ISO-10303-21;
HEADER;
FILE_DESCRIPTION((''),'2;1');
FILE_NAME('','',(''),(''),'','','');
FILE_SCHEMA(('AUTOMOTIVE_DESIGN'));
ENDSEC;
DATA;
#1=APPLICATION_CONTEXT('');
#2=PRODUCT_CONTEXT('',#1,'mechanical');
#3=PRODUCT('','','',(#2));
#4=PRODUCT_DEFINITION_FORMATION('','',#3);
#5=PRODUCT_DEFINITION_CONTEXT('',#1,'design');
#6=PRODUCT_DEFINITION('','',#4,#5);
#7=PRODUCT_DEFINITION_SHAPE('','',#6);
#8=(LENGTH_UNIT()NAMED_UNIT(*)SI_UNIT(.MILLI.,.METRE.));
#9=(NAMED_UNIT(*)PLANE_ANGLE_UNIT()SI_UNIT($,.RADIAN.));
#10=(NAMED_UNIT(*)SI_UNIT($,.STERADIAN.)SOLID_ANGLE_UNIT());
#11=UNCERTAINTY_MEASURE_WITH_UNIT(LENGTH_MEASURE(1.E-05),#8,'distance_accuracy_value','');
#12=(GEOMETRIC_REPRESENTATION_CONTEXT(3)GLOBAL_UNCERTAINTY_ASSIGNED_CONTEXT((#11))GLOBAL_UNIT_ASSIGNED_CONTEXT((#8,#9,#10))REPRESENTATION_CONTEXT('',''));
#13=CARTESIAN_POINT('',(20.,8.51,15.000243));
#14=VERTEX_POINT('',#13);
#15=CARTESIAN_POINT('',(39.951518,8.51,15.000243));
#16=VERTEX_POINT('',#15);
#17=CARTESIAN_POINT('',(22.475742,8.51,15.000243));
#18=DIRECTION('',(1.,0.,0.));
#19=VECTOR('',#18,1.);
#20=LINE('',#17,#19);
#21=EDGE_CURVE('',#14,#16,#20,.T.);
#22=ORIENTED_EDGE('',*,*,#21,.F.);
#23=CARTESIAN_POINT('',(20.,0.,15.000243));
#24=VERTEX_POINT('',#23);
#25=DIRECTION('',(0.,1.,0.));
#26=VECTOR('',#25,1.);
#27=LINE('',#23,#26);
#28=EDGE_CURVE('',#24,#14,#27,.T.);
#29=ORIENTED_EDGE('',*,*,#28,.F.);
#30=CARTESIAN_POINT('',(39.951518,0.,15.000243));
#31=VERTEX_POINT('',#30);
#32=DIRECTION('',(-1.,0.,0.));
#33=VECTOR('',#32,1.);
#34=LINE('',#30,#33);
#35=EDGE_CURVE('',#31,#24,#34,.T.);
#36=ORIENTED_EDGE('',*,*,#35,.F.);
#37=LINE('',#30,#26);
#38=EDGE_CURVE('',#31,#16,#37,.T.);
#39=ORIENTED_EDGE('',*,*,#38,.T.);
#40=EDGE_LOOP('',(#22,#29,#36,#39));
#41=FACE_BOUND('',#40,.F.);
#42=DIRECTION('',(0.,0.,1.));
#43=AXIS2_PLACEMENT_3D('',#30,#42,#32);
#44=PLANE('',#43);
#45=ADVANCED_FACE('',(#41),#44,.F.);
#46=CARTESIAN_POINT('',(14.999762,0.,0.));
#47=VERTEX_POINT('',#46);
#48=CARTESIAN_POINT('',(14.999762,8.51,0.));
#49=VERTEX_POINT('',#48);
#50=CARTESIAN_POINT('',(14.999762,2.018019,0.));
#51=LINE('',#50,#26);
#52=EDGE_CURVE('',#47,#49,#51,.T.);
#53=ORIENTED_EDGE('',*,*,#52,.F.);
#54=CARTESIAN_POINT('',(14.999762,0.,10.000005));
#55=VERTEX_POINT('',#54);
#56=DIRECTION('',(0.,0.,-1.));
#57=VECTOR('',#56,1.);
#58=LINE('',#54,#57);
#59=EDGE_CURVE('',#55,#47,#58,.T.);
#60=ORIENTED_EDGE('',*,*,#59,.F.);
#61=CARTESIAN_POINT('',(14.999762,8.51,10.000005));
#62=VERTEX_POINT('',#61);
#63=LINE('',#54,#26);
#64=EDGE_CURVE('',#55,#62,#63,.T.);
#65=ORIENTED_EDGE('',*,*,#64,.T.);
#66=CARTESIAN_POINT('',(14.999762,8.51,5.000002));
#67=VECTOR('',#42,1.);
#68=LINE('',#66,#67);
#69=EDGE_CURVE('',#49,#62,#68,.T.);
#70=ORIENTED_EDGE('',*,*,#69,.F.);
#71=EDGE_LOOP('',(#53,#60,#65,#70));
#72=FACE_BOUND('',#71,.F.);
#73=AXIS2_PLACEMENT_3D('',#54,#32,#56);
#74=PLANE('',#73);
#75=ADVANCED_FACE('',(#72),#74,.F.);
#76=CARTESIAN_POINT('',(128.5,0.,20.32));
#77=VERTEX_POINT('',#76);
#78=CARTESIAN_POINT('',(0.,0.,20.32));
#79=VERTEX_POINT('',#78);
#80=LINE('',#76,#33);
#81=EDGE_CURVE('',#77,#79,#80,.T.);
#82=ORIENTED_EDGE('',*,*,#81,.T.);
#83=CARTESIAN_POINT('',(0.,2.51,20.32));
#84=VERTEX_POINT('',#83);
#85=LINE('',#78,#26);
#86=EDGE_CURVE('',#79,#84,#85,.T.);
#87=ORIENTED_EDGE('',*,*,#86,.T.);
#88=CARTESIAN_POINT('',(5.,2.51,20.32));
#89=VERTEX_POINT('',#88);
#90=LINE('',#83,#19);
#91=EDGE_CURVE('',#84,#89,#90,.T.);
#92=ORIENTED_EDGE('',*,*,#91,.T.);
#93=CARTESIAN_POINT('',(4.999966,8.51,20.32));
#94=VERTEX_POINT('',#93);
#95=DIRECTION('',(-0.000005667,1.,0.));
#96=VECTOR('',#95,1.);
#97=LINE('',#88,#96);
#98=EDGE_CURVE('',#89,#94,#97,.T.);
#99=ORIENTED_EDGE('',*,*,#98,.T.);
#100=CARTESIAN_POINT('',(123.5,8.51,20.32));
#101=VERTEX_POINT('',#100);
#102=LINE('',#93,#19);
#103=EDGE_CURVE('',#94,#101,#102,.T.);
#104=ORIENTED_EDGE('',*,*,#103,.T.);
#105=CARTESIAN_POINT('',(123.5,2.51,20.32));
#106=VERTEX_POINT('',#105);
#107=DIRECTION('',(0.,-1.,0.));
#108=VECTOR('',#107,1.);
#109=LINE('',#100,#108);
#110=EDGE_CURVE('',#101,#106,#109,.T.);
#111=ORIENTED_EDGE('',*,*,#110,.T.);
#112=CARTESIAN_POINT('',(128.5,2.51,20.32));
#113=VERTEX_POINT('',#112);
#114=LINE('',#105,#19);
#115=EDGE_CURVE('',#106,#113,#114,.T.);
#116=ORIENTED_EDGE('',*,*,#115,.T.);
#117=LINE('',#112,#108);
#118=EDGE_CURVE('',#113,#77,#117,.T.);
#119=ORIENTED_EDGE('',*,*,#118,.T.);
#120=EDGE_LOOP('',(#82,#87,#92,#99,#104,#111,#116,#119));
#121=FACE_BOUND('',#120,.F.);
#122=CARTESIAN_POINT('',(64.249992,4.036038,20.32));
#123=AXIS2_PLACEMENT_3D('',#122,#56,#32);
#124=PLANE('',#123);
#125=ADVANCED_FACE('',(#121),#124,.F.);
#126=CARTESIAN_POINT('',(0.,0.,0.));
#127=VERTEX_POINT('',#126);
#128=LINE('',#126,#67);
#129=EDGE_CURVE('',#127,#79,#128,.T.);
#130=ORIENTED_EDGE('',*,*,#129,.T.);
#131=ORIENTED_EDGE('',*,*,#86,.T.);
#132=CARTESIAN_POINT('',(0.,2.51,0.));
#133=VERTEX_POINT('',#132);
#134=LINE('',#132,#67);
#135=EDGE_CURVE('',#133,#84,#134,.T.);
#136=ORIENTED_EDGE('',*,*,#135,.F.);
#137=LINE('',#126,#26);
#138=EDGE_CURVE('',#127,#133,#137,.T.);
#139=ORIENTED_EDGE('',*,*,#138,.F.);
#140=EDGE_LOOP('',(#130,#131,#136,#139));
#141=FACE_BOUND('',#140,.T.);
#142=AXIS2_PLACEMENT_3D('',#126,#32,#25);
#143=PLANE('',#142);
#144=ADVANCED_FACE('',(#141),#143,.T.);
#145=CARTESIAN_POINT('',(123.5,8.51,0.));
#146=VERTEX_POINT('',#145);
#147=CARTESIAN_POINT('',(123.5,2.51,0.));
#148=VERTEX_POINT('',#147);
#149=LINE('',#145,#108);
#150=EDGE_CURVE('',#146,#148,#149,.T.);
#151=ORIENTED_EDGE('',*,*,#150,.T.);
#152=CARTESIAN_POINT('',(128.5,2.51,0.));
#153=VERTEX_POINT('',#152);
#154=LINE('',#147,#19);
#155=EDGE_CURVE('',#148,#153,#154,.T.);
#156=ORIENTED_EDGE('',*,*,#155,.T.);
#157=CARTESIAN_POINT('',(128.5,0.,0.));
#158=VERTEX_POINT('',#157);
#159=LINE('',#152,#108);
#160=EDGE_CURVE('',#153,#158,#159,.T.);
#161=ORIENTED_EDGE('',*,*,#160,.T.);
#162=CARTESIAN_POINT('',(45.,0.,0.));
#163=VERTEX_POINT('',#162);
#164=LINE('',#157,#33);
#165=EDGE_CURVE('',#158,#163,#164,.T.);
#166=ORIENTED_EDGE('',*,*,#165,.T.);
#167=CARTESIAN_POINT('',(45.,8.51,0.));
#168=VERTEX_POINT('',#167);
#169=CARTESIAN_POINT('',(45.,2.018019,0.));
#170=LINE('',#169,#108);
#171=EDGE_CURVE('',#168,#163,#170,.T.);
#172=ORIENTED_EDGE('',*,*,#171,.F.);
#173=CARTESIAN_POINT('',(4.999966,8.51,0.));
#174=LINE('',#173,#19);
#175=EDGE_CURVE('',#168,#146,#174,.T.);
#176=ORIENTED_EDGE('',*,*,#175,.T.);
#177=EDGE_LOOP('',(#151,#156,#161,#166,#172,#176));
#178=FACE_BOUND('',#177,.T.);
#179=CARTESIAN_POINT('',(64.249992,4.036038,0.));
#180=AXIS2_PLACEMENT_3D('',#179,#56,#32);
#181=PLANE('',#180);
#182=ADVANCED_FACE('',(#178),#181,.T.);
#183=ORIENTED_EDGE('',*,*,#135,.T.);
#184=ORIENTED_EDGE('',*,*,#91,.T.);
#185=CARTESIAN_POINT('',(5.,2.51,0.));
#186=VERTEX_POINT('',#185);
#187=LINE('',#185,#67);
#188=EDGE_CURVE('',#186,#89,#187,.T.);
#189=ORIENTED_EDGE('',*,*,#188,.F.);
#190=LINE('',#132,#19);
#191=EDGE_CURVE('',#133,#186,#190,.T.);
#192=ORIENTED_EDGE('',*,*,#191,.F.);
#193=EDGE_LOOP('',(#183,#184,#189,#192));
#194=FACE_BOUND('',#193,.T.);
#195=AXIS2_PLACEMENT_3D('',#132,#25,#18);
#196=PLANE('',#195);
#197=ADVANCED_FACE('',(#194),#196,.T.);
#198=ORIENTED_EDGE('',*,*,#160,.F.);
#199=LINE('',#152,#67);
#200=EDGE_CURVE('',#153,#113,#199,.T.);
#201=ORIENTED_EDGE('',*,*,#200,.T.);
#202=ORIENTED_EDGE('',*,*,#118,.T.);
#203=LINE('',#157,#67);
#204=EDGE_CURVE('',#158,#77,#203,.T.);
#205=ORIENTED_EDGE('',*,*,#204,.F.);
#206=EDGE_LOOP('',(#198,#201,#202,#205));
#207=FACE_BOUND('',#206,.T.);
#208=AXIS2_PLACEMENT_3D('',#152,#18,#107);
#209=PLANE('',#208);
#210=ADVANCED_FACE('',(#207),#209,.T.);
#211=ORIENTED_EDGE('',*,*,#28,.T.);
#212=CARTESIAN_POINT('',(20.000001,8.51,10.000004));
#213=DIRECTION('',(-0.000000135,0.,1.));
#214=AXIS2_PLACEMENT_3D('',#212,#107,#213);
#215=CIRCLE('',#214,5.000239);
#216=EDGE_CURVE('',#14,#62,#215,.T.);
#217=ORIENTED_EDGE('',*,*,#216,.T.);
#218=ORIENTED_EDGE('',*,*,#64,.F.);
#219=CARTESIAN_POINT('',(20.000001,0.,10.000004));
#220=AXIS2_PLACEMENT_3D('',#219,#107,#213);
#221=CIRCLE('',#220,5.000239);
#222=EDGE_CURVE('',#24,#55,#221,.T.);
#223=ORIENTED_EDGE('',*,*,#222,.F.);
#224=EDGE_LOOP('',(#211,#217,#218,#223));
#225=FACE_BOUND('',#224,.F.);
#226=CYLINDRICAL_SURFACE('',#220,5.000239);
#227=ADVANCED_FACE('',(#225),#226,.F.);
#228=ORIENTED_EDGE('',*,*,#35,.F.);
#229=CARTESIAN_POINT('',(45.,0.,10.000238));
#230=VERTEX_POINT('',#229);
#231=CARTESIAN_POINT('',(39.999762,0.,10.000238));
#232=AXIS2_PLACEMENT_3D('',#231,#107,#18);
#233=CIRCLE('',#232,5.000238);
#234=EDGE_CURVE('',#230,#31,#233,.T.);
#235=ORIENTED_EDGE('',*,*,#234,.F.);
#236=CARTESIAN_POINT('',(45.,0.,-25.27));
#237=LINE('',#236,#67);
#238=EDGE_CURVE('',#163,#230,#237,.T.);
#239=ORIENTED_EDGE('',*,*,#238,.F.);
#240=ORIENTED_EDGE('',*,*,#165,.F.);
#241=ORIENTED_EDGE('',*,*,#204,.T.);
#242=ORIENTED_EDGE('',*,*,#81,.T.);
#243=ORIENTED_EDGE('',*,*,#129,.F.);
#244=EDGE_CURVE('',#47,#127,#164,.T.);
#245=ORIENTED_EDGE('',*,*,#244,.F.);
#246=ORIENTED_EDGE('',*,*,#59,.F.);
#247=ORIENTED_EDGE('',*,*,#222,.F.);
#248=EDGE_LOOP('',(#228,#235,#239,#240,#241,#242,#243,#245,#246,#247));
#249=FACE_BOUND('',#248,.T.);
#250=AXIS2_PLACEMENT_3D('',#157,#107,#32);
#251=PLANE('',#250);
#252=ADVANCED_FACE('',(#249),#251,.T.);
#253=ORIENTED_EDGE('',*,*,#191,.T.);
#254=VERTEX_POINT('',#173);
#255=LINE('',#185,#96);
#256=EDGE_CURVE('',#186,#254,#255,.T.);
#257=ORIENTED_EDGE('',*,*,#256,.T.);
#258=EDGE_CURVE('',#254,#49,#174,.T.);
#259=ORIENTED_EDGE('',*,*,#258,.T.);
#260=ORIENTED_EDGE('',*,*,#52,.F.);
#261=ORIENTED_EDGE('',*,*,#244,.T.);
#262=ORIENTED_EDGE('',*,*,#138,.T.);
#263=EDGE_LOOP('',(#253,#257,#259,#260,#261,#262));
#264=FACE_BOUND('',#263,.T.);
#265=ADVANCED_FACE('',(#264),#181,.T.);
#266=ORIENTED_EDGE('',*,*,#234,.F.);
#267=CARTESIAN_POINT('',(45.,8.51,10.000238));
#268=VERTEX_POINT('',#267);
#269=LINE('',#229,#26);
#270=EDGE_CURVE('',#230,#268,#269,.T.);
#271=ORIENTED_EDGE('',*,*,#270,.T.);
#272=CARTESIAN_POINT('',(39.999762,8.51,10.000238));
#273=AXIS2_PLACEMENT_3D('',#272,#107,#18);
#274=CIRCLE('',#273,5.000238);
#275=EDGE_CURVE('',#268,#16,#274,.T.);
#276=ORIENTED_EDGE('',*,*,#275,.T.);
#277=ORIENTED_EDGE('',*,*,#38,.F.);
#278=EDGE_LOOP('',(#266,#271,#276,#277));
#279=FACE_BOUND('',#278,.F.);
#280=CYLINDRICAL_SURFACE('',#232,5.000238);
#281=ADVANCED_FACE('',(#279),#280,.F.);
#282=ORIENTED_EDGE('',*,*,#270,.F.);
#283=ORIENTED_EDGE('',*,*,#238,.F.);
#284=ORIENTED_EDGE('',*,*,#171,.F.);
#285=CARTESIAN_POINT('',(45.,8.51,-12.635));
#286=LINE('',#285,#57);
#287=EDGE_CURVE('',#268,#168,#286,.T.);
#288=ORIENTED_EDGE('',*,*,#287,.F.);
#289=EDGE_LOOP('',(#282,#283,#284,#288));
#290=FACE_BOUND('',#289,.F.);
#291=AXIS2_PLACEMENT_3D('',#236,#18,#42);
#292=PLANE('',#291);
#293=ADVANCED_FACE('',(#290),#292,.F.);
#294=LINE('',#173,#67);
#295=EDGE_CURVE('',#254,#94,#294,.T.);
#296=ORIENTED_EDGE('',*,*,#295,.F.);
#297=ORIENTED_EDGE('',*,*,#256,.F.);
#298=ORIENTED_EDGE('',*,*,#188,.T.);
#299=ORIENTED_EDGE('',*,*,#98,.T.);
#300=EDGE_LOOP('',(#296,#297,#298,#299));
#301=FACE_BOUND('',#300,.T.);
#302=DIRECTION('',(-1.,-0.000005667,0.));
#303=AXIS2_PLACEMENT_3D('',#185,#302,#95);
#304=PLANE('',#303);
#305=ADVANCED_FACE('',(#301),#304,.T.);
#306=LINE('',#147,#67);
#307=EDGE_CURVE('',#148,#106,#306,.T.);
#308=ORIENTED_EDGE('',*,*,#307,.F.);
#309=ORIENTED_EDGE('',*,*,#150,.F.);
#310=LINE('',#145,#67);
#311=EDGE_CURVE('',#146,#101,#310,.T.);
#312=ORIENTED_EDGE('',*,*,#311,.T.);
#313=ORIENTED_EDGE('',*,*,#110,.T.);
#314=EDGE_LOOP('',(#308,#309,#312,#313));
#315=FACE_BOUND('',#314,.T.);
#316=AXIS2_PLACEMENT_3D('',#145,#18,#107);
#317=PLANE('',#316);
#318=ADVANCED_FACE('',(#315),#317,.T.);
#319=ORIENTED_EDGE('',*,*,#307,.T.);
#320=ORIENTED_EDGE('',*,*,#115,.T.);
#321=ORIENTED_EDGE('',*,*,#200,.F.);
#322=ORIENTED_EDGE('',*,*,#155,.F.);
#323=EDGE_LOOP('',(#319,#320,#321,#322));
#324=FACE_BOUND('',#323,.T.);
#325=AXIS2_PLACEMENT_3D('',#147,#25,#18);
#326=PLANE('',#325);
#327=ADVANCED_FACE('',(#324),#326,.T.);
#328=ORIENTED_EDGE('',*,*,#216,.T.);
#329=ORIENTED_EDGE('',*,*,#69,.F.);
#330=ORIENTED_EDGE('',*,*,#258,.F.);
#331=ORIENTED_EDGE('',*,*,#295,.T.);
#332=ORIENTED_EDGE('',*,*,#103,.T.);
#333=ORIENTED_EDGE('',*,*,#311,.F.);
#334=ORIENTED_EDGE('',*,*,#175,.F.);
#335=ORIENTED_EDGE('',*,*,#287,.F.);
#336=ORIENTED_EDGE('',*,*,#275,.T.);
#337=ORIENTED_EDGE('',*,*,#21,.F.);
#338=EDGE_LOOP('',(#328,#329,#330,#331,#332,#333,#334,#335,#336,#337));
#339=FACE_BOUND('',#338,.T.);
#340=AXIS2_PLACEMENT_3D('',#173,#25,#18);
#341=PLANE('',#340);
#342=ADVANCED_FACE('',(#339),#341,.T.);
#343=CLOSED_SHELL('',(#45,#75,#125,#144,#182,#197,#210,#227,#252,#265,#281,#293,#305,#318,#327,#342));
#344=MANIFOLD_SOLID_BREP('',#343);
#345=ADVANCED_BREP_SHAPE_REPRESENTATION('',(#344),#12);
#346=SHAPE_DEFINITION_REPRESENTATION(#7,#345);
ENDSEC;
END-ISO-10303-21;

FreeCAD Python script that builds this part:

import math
import FreeCAD as App
import Part
import Sketcher

V = App.Vector
Q = App.Units.Quantity

doc = App.newDocument("Part")
body = doc.addObject("PartDesign::Body", "Body")

sketch1 = body.newObject("Sketcher::SketchObject", "Sketch")
sketch1.AttachmentSupport = (doc.getObject("XY_Plane"), [""])
sketch1.MapMode = "FlatFace"
sketch1.addGeometry([
    Part.LineSegment(V(0, 2.5, 0), V(0, 0, 0)),
    Part.LineSegment(V(0, 0, 0), V(128.5, 0, 0)),
    Part.LineSegment(V(128.5, 0, 0), V(128.5, 2.5, 0)),
    Part.LineSegment(V(128.5, 2.5, 0), V(123.5, 2.5, 0)),
    Part.LineSegment(V(123.5, 2.5, 0), V(123.5, 8.5, 0)),
    Part.LineSegment(V(123.5, 8.5, 0), V(5, 8.5, 0)),
    Part.LineSegment(V(5, 8.5, 0), V(5, 2.5, 0)),
    Part.LineSegment(V(5, 2.5, 0), V(0, 2.5, 0)),
], False)
sketch1.addConstraint([
    Sketcher.Constraint("Coincident", 0, 2, 1, 1),
    Sketcher.Constraint("Coincident", 1, 2, 2, 1),
    Sketcher.Constraint("Coincident", 2, 2, 3, 1),
    Sketcher.Constraint("Coincident", 3, 2, 4, 1),
    Sketcher.Constraint("Coincident", 4, 2, 5, 1),
    Sketcher.Constraint("Coincident", 5, 2, 6, 1),
    Sketcher.Constraint("Coincident", 6, 2, 7, 1),
    Sketcher.Constraint("Coincident", 7, 2, 0, 1),
    Sketcher.Constraint("Vertical", 0),
    Sketcher.Constraint("Horizontal", 1),
    Sketcher.Constraint("Vertical", 2),
    Sketcher.Constraint("Horizontal", 3),
    Sketcher.Constraint("Vertical", 4),
    Sketcher.Constraint("Horizontal", 5),
    Sketcher.Constraint("Horizontal", 7),
    Sketcher.Constraint("Coincident", 0, 2, -1, 1),
    Sketcher.Constraint("Horizontal", 3, 2, 6, 2),
    Sketcher.Constraint("Equal", 3, 7),
    Sketcher.Constraint("DistanceX", 3, 2, 3, 1, Q("5 mm")),
    Sketcher.Constraint("DistanceY", 4, 1, 4, 2, Q("6 mm")),
    Sketcher.Constraint("DistanceX", 1, 1, 1, 2, Q("128.5 mm")),
    Sketcher.Constraint("DistanceY", 0, 2, 0, 1, Q("2.51 mm")),
    Sketcher.Constraint("DistanceX", 5, 2, 5, 1, Q("118.500034 mm")),
])
pad1 = body.newObject("PartDesign::Pad", "Pad")
pad1.Profile = sketch1
pad1.Length = 20.32

sketch2 = body.newObject("Sketcher::SketchObject", "Sketch001")
sketch2.AttachmentSupport = (doc.getObject("XZ_Plane"), [""])
sketch2.MapMode = "FlatFace"
sketch2.addGeometry([
    Part.ArcOfCircle(Part.Circle(V(20, 10, 0), V(0, 0, 1), 5), math.radians(90), math.radians(180)),
    Part.LineSegment(V(15, 10, 0), V(15, -25, 0)),
    Part.LineSegment(V(15, -25, 0), V(45, -25, 0)),
    Part.LineSegment(V(45, -25, 0), V(45, 10, 0)),
    Part.ArcOfCircle(Part.Circle(V(40, 10, 0), V(0, 0, 1), 5), math.radians(0), math.radians(91)),
    Part.LineSegment(V(40, 15, 0), V(20, 15, 0)),
], False)
sketch2.addConstraint([
    Sketcher.Constraint("Tangent", 0, 2, 1, 1),
    Sketcher.Constraint("Coincident", 1, 2, 2, 1),
    Sketcher.Constraint("Coincident", 2, 2, 3, 1),
    Sketcher.Constraint("Tangent", 3, 2, 4, 1),
    Sketcher.Constraint("Coincident", 4, 2, 5, 1),
    Sketcher.Constraint("Tangent", 5, 2, 0, 1),
    Sketcher.Constraint("Vertical", 1),
    Sketcher.Constraint("Horizontal", 2),
    Sketcher.Constraint("Vertical", 3),
    Sketcher.Constraint("Horizontal", 5),
    Sketcher.Constraint("Equal", 0, 4),
    Sketcher.Constraint("DistanceX", -1, 1, 0, 3, Q("20.000001 mm")),
    Sketcher.Constraint("DistanceX", -1, 1, 2, 2, Q("45 mm")),
    Sketcher.Constraint("DistanceY", 1, 2, -1, 1, Q("25.27 mm")),
    Sketcher.Constraint("Radius", 0, Q("5.000239 mm")),
    Sketcher.Constraint("DistanceX", 5, 2, 5, 1, Q("19.951518 mm")),
    Sketcher.Constraint("DistanceY", 1, 2, 1, 1, Q("35.270005 mm")),
])
pocket1 = body.newObject("PartDesign::Pocket", "Pocket")
pocket1.Profile = sketch2
pocket1.Length = 21

doc.recompute()
